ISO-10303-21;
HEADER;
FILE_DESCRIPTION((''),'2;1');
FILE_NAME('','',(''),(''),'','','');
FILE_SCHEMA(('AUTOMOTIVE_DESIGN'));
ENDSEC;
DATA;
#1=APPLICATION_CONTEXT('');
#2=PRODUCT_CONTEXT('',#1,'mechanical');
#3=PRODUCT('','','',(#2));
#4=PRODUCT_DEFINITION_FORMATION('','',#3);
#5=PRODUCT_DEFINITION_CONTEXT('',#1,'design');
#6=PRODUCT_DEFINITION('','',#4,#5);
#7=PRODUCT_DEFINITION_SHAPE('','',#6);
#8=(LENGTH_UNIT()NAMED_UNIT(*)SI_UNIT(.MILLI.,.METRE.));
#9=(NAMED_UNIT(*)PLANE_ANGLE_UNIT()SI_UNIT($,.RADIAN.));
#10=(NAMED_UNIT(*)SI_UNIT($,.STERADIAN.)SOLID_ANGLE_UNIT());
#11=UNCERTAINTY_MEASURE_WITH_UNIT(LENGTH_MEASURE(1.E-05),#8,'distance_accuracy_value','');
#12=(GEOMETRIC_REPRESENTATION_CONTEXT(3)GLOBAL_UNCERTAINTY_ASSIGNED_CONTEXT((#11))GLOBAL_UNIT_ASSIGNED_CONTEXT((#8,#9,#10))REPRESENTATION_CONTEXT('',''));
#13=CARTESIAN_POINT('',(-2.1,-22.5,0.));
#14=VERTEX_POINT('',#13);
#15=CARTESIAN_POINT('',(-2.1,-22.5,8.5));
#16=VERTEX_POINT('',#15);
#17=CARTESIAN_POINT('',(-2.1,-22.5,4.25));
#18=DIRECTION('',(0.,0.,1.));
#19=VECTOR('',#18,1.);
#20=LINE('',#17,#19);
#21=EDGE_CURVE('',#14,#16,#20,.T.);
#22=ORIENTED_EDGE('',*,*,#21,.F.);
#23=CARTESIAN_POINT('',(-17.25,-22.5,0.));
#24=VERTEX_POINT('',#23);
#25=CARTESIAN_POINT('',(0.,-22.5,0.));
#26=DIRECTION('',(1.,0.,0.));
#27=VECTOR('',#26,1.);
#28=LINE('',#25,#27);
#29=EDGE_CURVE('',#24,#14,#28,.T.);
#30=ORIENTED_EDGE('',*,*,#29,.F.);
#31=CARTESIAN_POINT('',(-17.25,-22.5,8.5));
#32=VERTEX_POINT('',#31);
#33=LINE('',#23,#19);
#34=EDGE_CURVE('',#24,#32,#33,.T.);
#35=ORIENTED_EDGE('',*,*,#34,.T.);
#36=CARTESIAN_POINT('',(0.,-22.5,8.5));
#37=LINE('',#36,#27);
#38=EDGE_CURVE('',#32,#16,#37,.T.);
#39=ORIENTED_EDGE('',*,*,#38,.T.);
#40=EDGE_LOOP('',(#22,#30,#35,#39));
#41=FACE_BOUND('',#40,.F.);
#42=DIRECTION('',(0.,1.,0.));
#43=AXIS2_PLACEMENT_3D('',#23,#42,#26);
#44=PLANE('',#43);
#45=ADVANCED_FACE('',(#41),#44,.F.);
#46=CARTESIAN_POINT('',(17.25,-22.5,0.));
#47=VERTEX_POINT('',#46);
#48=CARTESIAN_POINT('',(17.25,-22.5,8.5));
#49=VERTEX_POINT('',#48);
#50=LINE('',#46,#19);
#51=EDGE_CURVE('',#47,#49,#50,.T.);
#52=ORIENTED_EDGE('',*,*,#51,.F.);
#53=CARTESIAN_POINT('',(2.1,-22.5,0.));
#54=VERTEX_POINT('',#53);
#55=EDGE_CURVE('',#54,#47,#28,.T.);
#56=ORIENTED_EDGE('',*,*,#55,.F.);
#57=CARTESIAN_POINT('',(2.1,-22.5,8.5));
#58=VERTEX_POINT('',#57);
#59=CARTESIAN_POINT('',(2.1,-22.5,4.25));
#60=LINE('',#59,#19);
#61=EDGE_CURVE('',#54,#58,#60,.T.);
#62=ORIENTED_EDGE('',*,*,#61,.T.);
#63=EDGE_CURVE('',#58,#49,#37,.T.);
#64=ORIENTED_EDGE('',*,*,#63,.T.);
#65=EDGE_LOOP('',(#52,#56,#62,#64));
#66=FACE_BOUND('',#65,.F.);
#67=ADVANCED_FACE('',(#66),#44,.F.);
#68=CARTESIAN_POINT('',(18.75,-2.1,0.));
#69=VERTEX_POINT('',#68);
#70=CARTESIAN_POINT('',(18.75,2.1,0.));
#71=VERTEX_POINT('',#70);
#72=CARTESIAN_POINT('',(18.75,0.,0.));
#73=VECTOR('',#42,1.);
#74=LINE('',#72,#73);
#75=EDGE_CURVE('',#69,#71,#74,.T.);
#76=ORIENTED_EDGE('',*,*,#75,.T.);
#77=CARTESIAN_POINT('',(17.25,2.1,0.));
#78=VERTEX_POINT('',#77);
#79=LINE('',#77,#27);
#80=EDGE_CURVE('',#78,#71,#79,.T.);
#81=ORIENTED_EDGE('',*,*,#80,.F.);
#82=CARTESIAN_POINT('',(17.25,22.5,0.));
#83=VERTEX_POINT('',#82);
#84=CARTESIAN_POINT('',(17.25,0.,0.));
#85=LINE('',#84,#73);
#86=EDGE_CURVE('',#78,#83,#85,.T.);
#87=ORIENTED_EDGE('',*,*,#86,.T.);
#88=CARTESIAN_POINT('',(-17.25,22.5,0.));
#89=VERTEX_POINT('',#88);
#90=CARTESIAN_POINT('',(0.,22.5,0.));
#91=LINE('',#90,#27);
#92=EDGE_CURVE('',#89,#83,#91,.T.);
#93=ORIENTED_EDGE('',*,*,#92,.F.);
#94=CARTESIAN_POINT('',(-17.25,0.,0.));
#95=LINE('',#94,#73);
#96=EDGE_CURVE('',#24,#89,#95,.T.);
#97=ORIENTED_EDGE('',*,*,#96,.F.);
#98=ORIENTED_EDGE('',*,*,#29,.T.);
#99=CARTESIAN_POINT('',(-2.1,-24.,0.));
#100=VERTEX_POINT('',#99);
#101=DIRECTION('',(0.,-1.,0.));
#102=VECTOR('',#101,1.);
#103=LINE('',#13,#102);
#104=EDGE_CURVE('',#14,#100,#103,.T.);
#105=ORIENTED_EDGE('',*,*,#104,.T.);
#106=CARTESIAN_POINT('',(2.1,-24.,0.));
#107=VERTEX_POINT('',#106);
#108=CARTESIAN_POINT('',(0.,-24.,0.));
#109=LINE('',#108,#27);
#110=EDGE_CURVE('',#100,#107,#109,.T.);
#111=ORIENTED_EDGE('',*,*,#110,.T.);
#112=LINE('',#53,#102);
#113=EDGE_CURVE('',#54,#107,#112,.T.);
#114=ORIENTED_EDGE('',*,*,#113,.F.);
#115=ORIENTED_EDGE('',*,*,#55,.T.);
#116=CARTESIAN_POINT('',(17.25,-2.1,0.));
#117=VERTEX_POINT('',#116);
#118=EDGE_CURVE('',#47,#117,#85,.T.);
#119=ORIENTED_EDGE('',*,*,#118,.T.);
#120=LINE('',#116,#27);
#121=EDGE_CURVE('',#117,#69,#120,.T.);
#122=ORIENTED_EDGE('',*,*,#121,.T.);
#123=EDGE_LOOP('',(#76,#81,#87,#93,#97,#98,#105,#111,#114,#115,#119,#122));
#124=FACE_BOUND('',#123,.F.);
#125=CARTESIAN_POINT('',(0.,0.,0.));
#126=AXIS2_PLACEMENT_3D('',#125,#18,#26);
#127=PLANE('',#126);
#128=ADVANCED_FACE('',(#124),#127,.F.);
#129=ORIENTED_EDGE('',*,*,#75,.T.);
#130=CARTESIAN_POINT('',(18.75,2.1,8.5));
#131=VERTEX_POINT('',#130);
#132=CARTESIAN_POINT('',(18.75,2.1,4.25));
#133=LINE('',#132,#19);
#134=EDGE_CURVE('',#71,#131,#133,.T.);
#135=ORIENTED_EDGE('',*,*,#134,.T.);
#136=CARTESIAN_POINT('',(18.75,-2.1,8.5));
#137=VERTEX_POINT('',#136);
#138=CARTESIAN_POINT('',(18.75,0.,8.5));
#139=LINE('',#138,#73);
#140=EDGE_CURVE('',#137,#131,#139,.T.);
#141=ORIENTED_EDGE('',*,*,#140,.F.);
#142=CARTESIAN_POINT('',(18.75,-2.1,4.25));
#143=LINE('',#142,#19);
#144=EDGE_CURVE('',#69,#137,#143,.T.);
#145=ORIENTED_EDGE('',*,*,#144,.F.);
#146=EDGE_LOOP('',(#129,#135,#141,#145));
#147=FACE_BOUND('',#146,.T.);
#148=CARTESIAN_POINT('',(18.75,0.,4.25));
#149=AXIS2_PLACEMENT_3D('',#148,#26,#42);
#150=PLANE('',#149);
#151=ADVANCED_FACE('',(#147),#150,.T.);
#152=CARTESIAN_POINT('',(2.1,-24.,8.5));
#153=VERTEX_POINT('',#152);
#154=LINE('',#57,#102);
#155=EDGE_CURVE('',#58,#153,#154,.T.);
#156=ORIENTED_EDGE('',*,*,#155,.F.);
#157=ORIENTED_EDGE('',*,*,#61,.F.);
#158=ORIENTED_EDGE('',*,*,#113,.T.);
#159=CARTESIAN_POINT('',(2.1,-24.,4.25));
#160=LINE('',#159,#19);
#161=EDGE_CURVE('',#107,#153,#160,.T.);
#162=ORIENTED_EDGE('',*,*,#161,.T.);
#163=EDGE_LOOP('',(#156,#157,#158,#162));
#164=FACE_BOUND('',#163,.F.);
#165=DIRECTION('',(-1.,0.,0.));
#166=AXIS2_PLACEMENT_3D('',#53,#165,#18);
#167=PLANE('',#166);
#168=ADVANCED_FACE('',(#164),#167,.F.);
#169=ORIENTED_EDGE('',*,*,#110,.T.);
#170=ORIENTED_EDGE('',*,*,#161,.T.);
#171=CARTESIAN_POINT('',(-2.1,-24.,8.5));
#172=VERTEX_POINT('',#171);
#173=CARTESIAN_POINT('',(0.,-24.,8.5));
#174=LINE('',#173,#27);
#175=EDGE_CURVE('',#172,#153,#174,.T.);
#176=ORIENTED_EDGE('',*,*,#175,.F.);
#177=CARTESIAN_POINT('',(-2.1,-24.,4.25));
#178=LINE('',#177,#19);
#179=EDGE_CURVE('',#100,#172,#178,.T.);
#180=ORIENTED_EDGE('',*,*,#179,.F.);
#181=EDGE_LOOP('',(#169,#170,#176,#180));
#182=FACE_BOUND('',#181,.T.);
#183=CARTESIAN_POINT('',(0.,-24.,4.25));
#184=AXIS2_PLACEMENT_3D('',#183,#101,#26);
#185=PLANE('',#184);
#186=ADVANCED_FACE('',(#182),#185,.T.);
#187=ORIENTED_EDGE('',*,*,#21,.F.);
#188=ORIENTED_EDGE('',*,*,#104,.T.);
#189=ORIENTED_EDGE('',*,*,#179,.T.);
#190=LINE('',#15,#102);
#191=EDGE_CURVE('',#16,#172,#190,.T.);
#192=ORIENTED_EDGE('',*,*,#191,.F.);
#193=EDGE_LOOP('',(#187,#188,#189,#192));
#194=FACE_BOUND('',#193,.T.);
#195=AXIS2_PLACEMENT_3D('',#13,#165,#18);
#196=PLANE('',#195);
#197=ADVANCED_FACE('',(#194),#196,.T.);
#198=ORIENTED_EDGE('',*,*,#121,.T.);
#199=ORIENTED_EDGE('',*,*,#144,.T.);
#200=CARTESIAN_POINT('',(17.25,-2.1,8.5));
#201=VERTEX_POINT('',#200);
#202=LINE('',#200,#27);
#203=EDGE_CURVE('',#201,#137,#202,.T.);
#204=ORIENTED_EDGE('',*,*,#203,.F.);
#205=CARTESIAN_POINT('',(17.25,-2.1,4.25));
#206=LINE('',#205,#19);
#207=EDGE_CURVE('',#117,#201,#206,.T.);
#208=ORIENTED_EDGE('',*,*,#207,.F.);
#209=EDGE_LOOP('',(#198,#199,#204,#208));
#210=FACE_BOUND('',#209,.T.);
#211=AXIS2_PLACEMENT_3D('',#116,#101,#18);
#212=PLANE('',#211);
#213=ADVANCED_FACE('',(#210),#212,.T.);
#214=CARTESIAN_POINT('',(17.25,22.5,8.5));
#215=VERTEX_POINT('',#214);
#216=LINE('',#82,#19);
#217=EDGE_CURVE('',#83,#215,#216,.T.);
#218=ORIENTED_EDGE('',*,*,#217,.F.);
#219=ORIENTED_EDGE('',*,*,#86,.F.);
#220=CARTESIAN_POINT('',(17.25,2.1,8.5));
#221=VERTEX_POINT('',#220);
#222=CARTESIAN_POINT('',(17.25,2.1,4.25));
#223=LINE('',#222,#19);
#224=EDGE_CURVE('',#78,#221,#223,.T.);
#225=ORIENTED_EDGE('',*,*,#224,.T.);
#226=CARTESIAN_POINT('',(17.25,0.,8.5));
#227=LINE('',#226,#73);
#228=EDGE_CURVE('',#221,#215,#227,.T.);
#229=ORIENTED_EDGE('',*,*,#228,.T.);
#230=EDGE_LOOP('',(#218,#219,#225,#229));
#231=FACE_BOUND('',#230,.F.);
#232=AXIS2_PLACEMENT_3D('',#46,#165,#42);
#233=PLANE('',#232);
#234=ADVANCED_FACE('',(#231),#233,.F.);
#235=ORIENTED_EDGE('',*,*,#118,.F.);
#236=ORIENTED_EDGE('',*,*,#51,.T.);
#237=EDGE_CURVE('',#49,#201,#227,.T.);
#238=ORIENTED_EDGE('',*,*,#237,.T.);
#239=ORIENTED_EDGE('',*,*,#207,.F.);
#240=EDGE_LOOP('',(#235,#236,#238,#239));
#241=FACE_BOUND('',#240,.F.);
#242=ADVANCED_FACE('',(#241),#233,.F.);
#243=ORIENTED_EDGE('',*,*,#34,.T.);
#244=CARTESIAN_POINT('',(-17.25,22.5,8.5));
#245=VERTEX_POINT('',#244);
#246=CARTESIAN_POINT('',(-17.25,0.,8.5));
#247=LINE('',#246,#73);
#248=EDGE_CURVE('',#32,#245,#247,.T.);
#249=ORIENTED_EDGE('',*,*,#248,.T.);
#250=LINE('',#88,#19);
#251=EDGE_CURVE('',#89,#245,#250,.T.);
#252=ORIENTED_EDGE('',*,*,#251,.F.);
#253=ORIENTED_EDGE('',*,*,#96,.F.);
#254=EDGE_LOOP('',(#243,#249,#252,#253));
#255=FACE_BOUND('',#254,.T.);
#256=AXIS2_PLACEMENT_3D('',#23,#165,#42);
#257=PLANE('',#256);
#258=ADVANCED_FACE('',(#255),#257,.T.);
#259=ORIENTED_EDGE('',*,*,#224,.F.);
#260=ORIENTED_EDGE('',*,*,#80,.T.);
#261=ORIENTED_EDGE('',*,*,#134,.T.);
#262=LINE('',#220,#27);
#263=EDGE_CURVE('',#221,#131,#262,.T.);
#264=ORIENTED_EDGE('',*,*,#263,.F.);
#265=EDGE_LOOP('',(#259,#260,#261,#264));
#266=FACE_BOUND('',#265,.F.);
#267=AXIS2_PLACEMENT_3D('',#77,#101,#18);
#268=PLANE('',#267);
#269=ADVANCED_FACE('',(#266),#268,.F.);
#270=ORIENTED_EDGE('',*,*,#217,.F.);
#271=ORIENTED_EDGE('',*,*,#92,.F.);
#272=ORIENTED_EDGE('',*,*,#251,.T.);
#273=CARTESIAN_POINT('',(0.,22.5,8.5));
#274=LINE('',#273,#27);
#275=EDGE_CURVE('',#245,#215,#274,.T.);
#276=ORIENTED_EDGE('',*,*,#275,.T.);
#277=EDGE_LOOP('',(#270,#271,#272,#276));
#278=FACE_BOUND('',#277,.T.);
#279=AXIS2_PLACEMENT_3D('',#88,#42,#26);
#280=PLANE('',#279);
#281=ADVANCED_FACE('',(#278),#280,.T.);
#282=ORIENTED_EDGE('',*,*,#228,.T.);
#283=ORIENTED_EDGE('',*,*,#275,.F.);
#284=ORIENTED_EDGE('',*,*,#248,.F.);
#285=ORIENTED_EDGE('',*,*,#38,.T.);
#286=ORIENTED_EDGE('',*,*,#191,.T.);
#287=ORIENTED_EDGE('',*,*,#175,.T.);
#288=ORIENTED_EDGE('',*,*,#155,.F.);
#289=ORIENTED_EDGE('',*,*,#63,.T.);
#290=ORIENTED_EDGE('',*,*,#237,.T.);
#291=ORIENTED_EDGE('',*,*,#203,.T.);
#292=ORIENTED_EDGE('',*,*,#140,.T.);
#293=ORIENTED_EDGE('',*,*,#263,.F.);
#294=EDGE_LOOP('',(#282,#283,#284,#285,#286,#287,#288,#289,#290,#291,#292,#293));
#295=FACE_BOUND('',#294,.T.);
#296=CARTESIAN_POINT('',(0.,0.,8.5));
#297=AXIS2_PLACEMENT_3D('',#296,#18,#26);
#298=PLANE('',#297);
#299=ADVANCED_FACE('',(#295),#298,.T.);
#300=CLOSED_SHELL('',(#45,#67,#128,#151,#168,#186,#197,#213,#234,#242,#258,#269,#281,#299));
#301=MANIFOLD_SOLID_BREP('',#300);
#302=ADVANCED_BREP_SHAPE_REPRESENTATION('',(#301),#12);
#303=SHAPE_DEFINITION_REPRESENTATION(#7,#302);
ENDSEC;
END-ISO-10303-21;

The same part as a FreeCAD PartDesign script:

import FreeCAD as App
import Part
import Sketcher
Q = App.Units.Quantity


def add_polygon(sketch, points):
    """Adds a closed chain of lines whose ends are joined by coincident constraints."""
    first, n = sketch.GeometryCount, len(points)
    for a, b in zip(points, points[1:] + points[:1]):
        sketch.addGeometry(Part.LineSegment(App.Vector(*a, 0), App.Vector(*b, 0)), False)
    for i in range(n):
        sketch.addConstraint(Sketcher.Constraint("Coincident", first + i, 2, first + (i + 1) % n, 1))

doc = App.newDocument("Part")
body = doc.addObject("PartDesign::Body", "Body")

sketch1 = body.newObject("Sketcher::SketchObject", "Sketch")
sketch1.AttachmentSupport = (doc.getObject("XY_Plane"), [""])
sketch1.MapMode = "FlatFace"
add_polygon(sketch1, [(-17, 22), (-17, -22), (17, -22), (17, 22)])
sketch1.addConstraint([
    Sketcher.Constraint("Vertical", 0),
    Sketcher.Constraint("Horizontal", 1),
    Sketcher.Constraint("Vertical", 2),
    Sketcher.Constraint("Horizontal", 3),
    Sketcher.Constraint("Symmetric", 0, 2, 2, 2, -1, 1),
    Sketcher.Constraint("DistanceY", 0, 2, 0, 1, Q("45 mm")),
    Sketcher.Constraint("DistanceX", 1, 1, 1, 2, Q("34.5 mm")),
])
pad1 = body.newObject("PartDesign::Pad", "Pad")
pad1.Profile = sketch1
pad1.Length = 8.5

sketch2 = body.newObject("Sketcher::SketchObject", "Sketch001")
sketch2.AttachmentSupport = (doc.getObject("YZ_Plane"), [""])
sketch2.MapMode = "FlatFace"
sketch2.AttachmentOffset = App.Placement(App.Vector(0, 0, 17.25), App.Rotation())
add_polygon(sketch2, [(-2.1, 8.5), (-2.1, 0), (2.1, 0), (2.1, 8.5)])
sketch2.addConstraint([
    Sketcher.Constraint("Vertical", 0),
    Sketcher.Constraint("Horizontal", 1),
    Sketcher.Constraint("Vertical", 2),
    Sketcher.Constraint("Horizontal", 3),
    Sketcher.Constraint("Symmetric", 0, 2, 1, 2, -1, 1),
    Sketcher.Constraint("DistanceX", 1, 1, 1, 2, Q("4.2 mm")),
    Sketcher.Constraint("DistanceY", 0, 2, 0, 1, Q("8.5 mm")),
])
pad2 = body.newObject("PartDesign::Pad", "Pad001")
pad2.Profile = sketch2
pad2.Length = 1.5

sketch3 = body.newObject("Sketcher::SketchObject", "Sketch002")
sketch3.AttachmentSupport = (doc.getObject("XZ_Plane"), [""])
sketch3.MapMode = "FlatFace"
sketch3.AttachmentOffset = App.Placement(App.Vector(0, 0, 22.5), App.Rotation())
add_polygon(sketch3, [(-2.1, 8.5), (-2.1, 0), (2.1, 0), (2.1, 8.5)])
sketch3.addConstraint([
    Sketcher.Constraint("Vertical", 0),
    Sketcher.Constraint("Horizontal", 1),
    Sketcher.Constraint("Vertical", 2),
    Sketcher.Constraint("Horizontal", 3),
    Sketcher.Constraint("Symmetric", 0, 2, 1, 2, -1, 1),
    Sketcher.Constraint("DistanceX", 1, 1, 1, 2, Q("4.2 mm")),
    Sketcher.Constraint("DistanceY", 0, 2, 0, 1, Q("8.5 mm")),
])
pad3 = body.newObject("PartDesign::Pad", "Pad002")
pad3.Profile = sketch3
pad3.Length = 1.5

doc.recompute()
